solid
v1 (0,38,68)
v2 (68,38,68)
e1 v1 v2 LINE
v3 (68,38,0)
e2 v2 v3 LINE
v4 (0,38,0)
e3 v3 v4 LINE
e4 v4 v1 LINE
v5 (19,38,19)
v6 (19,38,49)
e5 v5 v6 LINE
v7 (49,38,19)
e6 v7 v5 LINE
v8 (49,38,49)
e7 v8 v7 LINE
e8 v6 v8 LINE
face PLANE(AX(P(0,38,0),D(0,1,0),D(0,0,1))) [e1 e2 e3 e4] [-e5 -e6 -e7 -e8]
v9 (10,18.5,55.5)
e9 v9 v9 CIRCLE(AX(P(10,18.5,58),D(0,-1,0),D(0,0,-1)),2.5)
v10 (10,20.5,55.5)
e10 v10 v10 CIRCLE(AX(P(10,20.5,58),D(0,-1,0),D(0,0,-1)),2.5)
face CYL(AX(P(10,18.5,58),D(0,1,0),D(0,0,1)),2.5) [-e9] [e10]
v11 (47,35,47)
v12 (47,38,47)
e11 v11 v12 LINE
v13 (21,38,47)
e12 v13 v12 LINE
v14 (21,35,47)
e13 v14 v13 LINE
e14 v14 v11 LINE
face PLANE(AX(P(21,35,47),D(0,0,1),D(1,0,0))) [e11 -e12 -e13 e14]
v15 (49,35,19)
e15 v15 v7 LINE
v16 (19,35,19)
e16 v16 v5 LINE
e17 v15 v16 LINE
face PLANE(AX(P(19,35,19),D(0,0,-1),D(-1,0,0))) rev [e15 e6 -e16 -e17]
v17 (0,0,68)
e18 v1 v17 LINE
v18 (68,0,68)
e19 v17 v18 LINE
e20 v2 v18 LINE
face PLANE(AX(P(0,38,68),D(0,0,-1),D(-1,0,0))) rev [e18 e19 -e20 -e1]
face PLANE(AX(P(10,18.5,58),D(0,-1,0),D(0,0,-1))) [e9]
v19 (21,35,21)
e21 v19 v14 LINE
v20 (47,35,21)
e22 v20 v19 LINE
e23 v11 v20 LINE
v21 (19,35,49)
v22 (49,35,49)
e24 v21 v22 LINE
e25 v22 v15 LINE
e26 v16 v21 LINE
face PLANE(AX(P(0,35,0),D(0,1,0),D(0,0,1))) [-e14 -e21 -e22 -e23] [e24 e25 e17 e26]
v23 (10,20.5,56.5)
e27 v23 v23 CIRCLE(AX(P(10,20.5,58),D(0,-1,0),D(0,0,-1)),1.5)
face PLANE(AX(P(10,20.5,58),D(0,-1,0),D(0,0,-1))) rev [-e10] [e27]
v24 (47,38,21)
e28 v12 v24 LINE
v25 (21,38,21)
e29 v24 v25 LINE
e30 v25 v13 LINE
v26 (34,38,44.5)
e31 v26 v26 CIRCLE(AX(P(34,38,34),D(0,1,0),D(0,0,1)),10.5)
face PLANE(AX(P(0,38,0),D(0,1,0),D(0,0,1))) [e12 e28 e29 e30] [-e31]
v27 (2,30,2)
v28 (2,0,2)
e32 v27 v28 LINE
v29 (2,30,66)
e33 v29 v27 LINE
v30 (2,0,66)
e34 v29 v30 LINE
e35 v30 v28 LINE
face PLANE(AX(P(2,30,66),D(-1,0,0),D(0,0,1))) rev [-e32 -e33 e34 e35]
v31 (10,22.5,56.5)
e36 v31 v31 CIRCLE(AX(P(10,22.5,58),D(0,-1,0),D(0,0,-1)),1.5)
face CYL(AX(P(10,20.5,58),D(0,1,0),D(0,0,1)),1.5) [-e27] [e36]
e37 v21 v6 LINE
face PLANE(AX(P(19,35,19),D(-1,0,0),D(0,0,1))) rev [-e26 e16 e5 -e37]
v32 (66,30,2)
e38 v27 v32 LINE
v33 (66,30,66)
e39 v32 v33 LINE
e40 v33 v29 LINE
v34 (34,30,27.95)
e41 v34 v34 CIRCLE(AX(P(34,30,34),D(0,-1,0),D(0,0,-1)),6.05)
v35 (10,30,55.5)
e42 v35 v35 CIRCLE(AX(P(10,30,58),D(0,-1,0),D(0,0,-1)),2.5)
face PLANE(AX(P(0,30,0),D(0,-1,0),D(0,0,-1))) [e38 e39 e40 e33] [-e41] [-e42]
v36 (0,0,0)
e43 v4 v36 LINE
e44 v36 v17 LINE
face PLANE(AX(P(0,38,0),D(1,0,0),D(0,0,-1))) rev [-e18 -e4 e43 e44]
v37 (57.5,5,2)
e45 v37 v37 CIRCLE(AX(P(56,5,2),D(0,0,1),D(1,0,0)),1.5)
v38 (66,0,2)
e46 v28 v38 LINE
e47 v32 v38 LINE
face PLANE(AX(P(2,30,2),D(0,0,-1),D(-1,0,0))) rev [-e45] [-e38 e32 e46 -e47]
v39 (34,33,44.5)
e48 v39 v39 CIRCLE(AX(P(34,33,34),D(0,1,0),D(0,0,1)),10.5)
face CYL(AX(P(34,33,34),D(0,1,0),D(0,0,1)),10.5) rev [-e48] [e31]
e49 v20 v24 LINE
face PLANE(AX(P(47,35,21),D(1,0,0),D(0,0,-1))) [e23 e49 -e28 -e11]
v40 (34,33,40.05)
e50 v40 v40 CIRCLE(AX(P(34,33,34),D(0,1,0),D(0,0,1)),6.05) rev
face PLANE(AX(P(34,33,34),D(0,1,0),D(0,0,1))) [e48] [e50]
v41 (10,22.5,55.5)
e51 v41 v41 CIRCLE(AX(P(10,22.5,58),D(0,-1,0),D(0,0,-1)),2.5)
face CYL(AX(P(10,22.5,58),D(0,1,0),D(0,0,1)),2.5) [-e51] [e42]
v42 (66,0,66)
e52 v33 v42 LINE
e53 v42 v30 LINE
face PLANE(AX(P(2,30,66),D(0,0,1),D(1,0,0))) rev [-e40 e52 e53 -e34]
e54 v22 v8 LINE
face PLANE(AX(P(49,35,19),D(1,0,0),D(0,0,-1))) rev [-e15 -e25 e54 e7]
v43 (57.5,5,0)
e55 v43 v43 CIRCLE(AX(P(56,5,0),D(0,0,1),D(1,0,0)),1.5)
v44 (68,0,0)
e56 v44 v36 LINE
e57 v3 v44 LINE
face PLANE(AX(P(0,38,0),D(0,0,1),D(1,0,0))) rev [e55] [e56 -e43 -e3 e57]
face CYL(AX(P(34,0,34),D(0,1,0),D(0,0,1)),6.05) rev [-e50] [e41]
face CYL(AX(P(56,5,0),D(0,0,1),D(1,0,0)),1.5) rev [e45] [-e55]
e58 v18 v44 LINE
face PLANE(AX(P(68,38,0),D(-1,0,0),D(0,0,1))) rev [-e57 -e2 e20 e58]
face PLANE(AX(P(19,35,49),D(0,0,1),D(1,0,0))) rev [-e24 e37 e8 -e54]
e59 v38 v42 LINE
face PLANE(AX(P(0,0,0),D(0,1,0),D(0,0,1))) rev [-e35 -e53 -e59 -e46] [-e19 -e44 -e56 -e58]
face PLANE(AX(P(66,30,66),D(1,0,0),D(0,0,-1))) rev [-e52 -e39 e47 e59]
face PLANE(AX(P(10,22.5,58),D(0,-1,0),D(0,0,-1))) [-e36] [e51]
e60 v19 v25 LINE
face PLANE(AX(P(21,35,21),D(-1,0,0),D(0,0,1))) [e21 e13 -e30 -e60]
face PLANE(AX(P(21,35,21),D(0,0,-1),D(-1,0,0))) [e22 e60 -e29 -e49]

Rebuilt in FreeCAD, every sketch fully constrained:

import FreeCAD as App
import Part
import Sketcher

V = App.Vector
Q = App.Units.Quantity

doc = App.newDocument("Part")
body = doc.addObject("PartDesign::Body", "Body")

# Sketch on XZ plane
sketch1 = body.newObject("Sketcher::SketchObject", "Sketch")
sketch1.AttachmentSupport = (doc.getObject("XZ_Plane"), [""])
sketch1.MapMode = "FlatFace"
sketch1.addGeometry([
    Part.LineSegment(V(0, 0, 0), V(0, 68, 0)),
    Part.LineSegment(V(0, 68, 0), V(68, 68, 0)),
    Part.LineSegment(V(68, 68, 0), V(68, 0, 0)),
    Part.LineSegment(V(68, 0, 0), V(0, 0, 0)),
], False)
sketch1.addConstraint([
    Sketcher.Constraint("Coincident", 0, 2, 1, 1),
    Sketcher.Constraint("Coincident", 1, 2, 2, 1),
    Sketcher.Constraint("Coincident", 2, 2, 3, 1),
    Sketcher.Constraint("Coincident", 3, 2, 0, 1),
    Sketcher.Constraint("Vertical", 0),
    Sketcher.Constraint("Horizontal", 1),
    Sketcher.Constraint("Vertical", 2),
    Sketcher.Constraint("Horizontal", 3),
    Sketcher.Constraint("Coincident", 3, 2, -1, 1),
    Sketcher.Constraint("Equal", 3, 0),
    Sketcher.Constraint("DistanceX", 1, 1, 1, 2, Q("68 mm")),
])
pad1 = body.newObject("PartDesign::Pad", "Pad")
pad1.Profile = sketch1
pad1.Length = 38
pad1.Reversed = True

# Sketch on XZ plane
sketch2 = body.newObject("Sketcher::SketchObject", "Sketch001")
sketch2.AttachmentSupport = (doc.getObject("XZ_Plane"), [""])
sketch2.MapMode = "FlatFace"
sketch2.addGeometry([
    Part.LineSegment(V(2, 66, 0), V(2, 2, 0)),
    Part.LineSegment(V(2, 2, 0), V(66, 2, 0)),
    Part.LineSegment(V(66, 2, 0), V(66, 66, 0)),
    Part.LineSegment(V(66, 66, 0), V(2, 66, 0)),
], False)
sketch2.addConstraint([
    Sketcher.Constraint("Coincident", 0, 2, 1, 1),
    Sketcher.Constraint("Coincident", 1, 2, 2, 1),
    Sketcher.Constraint("Coincident", 2, 2, 3, 1),
    Sketcher.Constraint("Coincident", 3, 2, 0, 1),
    Sketcher.Constraint("Vertical", 0),
    Sketcher.Constraint("Horizontal", 1),
    Sketcher.Constraint("Vertical", 2),
    Sketcher.Constraint("Horizontal", 3),
    Sketcher.Constraint("Equal", 3, 0),
    Sketcher.Constraint("DistanceX", 1, 1, 1, 2, Q("64 mm")),
    Sketcher.Constraint("DistanceX", -1, 1, 0, 2, Q("2 mm")),
    Sketcher.Constraint("DistanceY", -1, 1, 0, 2, Q("2 mm")),
])
pocket1 = body.newObject("PartDesign::Pocket", "Pocket")
pocket1.Profile = sketch2
pocket1.Length = 30

# Sketch on XZ plane
sketch3 = body.newObject("Sketcher::SketchObject", "Sketch002")
sketch3.AttachmentSupport = (doc.getObject("XZ_Plane"), [""])
sketch3.MapMode = "FlatFace"
sketch3.AttachmentOffset = App.Placement(V(0, 0, -38), App.Rotation())
sketch3.addGeometry([
    Part.LineSegment(V(19, 19, 0), V(19, 49, 0)),  # 0
    Part.LineSegment(V(19, 49, 0), V(49, 49, 0)),  # 1
    Part.LineSegment(V(49, 49, 0), V(49, 19, 0)),  # 2
    Part.LineSegment(V(49, 19, 0), V(19, 19, 0)),  # 3
    Part.LineSegment(V(47, 47, 0), V(21, 47, 0)),  # 4
    Part.LineSegment(V(21, 47, 0), V(21, 21, 0)),  # 5
    Part.LineSegment(V(21, 21, 0), V(47, 21, 0)),  # 6
    Part.LineSegment(V(47, 21, 0), V(47, 47, 0)),  # 7
], False)
sketch3.addConstraint([
    Sketcher.Constraint("Coincident", 0, 2, 1, 1),
    Sketcher.Constraint("Coincident", 1, 2, 2, 1),
    Sketcher.Constraint("Coincident", 2, 2, 3, 1),
    Sketcher.Constraint("Coincident", 3, 2, 0, 1),
    Sketcher.Constraint("Coincident", 4, 2, 5, 1),
    Sketcher.Constraint("Coincident", 5, 2, 6, 1),
    Sketcher.Constraint("Coincident", 6, 2, 7, 1),
    Sketcher.Constraint("Coincident", 7, 2, 4, 1),
    Sketcher.Constraint("Vertical", 0),
    Sketcher.Constraint("Horizontal", 1),
    Sketcher.Constraint("Vertical", 2),
    Sketcher.Constraint("Horizontal", 3),
    Sketcher.Constraint("Horizontal", 4),
    Sketcher.Constraint("Vertical", 5),
    Sketcher.Constraint("Horizontal", 6),
    Sketcher.Constraint("Vertical", 7),
    Sketcher.Constraint("Equal", 3, 0),
    Sketcher.Constraint("Equal", 6, 5),
    Sketcher.Constraint("DistanceX", 1, 1, 1, 2, Q("30 mm")),
    Sketcher.Constraint("DistanceX", 4, 2, 4, 1, Q("26 mm")),
    Sketcher.Constraint("DistanceX", -1, 1, 0, 2, Q("19 mm")),
    Sketcher.Constraint("DistanceY", -1, 1, 0, 2, Q("49 mm")),
    Sketcher.Constraint("DistanceX", -1, 1, 4, 2, Q("21 mm")),
    Sketcher.Constraint("DistanceY", -1, 1, 4, 2, Q("47 mm")),
])
pocket2 = body.newObject("PartDesign::Pocket", "Pocket001")
pocket2.Profile = sketch3
pocket2.Length = 3
pocket2.Reversed = True

# Sketch on XZ plane
sketch4 = body.newObject("Sketcher::SketchObject", "Sketch003")
sketch4.AttachmentSupport = (doc.getObject("XZ_Plane"), [""])
sketch4.MapMode = "FlatFace"
sketch4.AttachmentOffset = App.Placement(V(0, 0, -38), App.Rotation())
sketch4.addGeometry(Part.Circle(V(34, 34, 0), V(0, 0, 1), 6.05), False)
sketch4.addConstraint([
    Sketcher.Constraint("Diameter", 0, Q("12.1 mm")),
    Sketcher.Constraint("DistanceX", -1, 1, 0, 3, Q("34 mm")),
    Sketcher.Constraint("DistanceY", -1, 1, 0, 3, Q("34 mm")),
])
pocket3 = body.newObject("PartDesign::Pocket", "Pocket002")
pocket3.Profile = sketch4
pocket3.Type = "ThroughAll"
pocket3.Reversed = True

# Sketch on XZ plane
sketch5 = body.newObject("Sketcher::SketchObject", "Sketch004")
sketch5.AttachmentSupport = (doc.getObject("XZ_Plane"), [""])
sketch5.MapMode = "FlatFace"
sketch5.AttachmentOffset = App.Placement(V(0, 0, -38), App.Rotation())
sketch5.addGeometry(Part.Circle(V(34, 34, 0), V(0, 0, 1), 10.5), False)
sketch5.addConstraint([
    Sketcher.Constraint("Diameter", 0, Q("21 mm")),
    Sketcher.Constraint("DistanceX", -1, 1, 0, 3, Q("34 mm")),
    Sketcher.Constraint("DistanceY", -1, 1, 0, 3, Q("34 mm")),
])
pocket4 = body.newObject("PartDesign::Pocket", "Pocket003")
pocket4.Profile = sketch5
pocket4.Length = 5
pocket4.Reversed = True

# Sketch on XY plane
sketch6 = body.newObject("Sketcher::SketchObject", "Sketch005")
sketch6.AttachmentSupport = (doc.getObject("XY_Plane"), [""])
sketch6.MapMode = "FlatFace"
sketch6.AttachmentOffset = App.Placement(V(0, 0, 2), App.Rotation())
sketch6.addGeometry(Part.Circle(V(56, 5, 0), V(0, 0, 1), 1.5), False)
sketch6.addConstraint([
    Sketcher.Constraint("Diameter", 0, Q("3 mm")),
    Sketcher.Constraint("DistanceX", -1, 1, 0, 3, Q("56 mm")),
    Sketcher.Constraint("DistanceY", -1, 1, 0, 3, Q("5 mm")),
])
pocket5 = body.newObject("PartDesign::Pocket", "Pocket004")
pocket5.Profile = sketch6
pocket5.Type = "ThroughAll"

# Sketch on XZ plane
sketch7 = body.newObject("Sketcher::SketchObject", "Sketch006")
sketch7.AttachmentSupport = (doc.getObject("XZ_Plane"), [""])
sketch7.MapMode = "FlatFace"
sketch7.AttachmentOffset = App.Placement(V(0, 0, -30), App.Rotation())
sketch7.addGeometry(Part.Circle(V(10, 58, 0), V(0, 0, 1), 2.5), False)
sketch7.addConstraint([
    Sketcher.Constraint("Diameter", 0, Q("5 mm")),
    Sketcher.Constraint("DistanceX", -1, 1, 0, 3, Q("10 mm")),
    Sketcher.Constraint("DistanceY", -1, 1, 0, 3, Q("58 mm")),
])
pad2 = body.newObject("PartDesign::Pad", "Pad001")
pad2.Profile = sketch7
pad2.Length = 7.5

# Sketch on XZ plane
sketch8 = body.newObject("Sketcher::SketchObject", "Sketch007")
sketch8.AttachmentSupport = (doc.getObject("XZ_Plane"), [""])
sketch8.MapMode = "FlatFace"
sketch8.AttachmentOffset = App.Placement(V(0, 0, -22.5), App.Rotation())
sketch8.addGeometry(Part.Circle(V(10, 58, 0), V(0, 0, 1), 1.5), False)
sketch8.addConstraint([
    Sketcher.Constraint("Diameter", 0, Q("3 mm")),
    Sketcher.Constraint("DistanceX", -1, 1, 0, 3, Q("10 mm")),
    Sketcher.Constraint("DistanceY", -1, 1, 0, 3, Q("58 mm")),
])
pad3 = body.newObject("PartDesign::Pad", "Pad002")
pad3.Profile = sketch8
pad3.Length = 2

# Sketch on XZ plane
sketch9 = body.newObject("Sketcher::SketchObject", "Sketch008")
sketch9.AttachmentSupport = (doc.getObject("XZ_Plane"), [""])
sketch9.MapMode = "FlatFace"
sketch9.AttachmentOffset = App.Placement(V(0, 0, -20.5), App.Rotation())
sketch9.addGeometry(Part.Circle(V(10, 58, 0), V(0, 0, 1), 2.5), False)
sketch9.addConstraint([
    Sketcher.Constraint("Diameter", 0, Q("5 mm")),
    Sketcher.Constraint("DistanceX", -1, 1, 0, 3, Q("10 mm")),
    Sketcher.Constraint("DistanceY", -1, 1, 0, 3, Q("58 mm")),
])
pad4 = body.newObject("PartDesign::Pad", "Pad003")
pad4.Profile = sketch9
pad4.Length = 2

doc.recompute()
